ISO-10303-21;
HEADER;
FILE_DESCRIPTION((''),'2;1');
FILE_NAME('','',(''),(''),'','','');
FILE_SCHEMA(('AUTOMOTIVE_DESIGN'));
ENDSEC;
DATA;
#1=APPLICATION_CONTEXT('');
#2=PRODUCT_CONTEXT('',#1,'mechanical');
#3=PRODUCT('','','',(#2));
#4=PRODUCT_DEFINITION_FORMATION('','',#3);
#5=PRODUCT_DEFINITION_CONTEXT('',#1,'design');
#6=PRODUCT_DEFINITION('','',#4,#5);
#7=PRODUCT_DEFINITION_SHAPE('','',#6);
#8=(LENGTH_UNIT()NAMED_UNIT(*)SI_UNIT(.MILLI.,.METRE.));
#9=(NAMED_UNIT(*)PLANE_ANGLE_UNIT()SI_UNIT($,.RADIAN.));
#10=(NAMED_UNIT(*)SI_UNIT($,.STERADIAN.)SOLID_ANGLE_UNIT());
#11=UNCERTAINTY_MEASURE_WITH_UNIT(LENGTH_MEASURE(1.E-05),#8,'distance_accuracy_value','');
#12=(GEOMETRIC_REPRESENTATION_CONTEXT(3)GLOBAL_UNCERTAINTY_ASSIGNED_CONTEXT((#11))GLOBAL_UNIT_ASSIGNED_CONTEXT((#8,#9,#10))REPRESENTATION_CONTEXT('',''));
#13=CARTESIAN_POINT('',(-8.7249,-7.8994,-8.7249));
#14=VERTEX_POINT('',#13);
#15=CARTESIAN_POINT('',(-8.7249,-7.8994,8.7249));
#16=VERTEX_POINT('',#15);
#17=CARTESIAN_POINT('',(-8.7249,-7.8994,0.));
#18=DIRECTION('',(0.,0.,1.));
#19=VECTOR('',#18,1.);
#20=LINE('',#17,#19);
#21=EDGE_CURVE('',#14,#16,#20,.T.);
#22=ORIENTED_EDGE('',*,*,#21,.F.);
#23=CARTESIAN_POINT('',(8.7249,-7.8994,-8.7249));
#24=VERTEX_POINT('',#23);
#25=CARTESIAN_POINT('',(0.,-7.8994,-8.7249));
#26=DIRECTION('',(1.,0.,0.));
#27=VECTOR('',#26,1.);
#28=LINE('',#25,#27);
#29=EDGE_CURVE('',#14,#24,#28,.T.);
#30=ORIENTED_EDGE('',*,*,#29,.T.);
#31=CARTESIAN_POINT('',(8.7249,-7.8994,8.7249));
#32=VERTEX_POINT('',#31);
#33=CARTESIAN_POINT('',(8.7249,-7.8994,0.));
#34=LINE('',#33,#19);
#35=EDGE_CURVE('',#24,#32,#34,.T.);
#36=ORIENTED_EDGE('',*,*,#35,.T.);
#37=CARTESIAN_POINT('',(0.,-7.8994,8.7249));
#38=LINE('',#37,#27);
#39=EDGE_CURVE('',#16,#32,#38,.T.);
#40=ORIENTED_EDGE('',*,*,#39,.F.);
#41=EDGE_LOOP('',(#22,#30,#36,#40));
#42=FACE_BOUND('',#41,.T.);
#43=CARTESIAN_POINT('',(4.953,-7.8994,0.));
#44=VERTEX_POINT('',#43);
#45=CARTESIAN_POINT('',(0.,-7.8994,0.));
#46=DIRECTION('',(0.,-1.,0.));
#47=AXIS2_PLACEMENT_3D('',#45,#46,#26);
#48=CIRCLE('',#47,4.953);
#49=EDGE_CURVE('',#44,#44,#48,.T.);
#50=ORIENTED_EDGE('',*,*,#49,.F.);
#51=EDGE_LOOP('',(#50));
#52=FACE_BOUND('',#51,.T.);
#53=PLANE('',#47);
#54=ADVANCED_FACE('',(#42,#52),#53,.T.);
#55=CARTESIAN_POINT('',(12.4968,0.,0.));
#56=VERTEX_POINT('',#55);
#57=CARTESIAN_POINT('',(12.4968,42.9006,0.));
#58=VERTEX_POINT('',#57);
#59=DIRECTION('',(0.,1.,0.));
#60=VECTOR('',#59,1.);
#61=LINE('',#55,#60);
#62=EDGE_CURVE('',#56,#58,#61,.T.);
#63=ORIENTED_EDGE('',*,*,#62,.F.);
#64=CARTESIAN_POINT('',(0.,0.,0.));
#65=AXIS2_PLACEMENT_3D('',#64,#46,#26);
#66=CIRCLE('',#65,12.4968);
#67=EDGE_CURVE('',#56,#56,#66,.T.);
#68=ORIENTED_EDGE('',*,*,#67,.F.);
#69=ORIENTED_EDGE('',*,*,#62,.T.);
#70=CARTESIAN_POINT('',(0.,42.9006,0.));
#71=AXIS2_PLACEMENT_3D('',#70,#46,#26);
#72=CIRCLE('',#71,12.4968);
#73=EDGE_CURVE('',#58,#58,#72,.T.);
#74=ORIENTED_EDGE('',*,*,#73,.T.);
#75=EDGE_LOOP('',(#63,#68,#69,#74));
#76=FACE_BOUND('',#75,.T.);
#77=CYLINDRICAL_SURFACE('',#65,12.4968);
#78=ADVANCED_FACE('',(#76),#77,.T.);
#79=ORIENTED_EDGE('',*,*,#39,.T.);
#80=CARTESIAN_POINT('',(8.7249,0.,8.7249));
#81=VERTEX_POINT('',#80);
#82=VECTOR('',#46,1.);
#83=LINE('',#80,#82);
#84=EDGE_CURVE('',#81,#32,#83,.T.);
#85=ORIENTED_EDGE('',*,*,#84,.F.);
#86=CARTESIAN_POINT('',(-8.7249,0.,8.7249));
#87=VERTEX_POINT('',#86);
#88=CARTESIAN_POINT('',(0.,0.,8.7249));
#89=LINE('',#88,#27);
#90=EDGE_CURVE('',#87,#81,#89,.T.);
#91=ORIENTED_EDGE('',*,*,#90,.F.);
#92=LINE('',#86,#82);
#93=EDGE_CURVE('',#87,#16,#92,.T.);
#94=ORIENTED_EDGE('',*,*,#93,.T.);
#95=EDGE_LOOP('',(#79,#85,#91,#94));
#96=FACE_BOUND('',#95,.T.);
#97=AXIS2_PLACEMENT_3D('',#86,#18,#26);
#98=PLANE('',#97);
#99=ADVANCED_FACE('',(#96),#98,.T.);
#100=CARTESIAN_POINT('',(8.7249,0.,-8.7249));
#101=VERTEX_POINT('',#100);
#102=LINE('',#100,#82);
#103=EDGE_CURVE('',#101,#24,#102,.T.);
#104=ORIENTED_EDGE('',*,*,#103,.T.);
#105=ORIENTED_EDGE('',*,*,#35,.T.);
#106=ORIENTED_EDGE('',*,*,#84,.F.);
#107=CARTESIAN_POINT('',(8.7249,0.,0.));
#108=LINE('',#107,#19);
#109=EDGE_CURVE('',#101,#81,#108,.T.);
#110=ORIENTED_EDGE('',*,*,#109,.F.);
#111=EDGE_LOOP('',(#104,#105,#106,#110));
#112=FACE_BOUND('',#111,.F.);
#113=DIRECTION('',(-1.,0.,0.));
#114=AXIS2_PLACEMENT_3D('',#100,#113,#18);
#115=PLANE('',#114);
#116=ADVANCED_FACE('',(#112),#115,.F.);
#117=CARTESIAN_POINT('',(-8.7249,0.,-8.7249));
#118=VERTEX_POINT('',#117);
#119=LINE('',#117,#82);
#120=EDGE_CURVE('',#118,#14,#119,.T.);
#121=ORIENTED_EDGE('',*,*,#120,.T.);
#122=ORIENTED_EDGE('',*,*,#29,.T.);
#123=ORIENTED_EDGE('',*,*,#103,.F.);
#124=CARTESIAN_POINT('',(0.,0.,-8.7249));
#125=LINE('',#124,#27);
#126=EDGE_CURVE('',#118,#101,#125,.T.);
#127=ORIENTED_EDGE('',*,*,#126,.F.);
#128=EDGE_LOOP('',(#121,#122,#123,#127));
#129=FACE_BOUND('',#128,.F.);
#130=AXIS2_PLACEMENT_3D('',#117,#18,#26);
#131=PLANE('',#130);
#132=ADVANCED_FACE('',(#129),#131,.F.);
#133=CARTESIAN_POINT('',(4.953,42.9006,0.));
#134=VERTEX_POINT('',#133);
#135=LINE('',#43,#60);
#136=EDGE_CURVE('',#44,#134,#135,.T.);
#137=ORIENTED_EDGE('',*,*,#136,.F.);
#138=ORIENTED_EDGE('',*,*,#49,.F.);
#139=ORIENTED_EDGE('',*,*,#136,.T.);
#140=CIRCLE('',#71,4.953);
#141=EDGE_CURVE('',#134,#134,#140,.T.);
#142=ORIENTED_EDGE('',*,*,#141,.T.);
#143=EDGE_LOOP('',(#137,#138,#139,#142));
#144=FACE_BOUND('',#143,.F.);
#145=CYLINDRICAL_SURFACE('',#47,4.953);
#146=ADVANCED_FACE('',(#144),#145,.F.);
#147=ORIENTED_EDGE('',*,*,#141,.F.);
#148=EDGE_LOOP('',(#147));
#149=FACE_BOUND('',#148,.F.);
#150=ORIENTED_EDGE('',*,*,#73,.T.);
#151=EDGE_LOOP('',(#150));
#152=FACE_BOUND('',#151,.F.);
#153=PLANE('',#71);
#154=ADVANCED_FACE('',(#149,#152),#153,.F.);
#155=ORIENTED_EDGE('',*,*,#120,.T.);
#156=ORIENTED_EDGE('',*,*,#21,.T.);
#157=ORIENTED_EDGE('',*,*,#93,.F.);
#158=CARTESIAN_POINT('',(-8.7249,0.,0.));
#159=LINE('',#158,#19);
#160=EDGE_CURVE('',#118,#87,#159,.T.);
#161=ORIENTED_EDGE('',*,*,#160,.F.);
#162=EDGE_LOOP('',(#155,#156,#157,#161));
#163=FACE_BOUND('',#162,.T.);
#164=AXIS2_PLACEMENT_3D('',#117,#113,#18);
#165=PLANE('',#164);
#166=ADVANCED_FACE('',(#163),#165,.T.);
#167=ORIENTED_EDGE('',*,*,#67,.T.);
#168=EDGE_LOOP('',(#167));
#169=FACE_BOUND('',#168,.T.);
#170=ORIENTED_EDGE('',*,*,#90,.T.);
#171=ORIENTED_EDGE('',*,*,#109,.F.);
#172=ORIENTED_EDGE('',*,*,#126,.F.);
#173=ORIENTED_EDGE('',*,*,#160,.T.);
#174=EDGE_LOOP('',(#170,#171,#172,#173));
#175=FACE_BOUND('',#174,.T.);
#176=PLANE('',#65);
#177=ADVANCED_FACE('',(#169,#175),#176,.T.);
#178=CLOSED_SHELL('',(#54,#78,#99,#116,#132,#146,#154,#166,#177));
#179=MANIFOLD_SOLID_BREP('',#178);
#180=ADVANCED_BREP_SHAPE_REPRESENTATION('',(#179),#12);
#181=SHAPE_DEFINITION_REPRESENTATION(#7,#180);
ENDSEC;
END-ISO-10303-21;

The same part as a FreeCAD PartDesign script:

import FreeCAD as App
import Part
import Sketcher
Q = App.Units.Quantity

doc = App.newDocument("Part")
params = doc.addObject("Spreadsheet::Sheet", "Params")
for row, (alias, value) in enumerate([
    ("sketch1_diameter", "0.984 in"),
    ("pad1_length", "1.689 in"),
    ("sketch2_width", "0.687 in"),
    ("pad2_length", "0.311 in"),
    ("sketch3_diameter", "0.39 in"),
    ("pocket1_length", "2 in"),
], start=1):
    params.set(f"A{row}", alias)
    params.set(f"B{row}", "=" + value)
    params.setAlias(f"B{row}", alias)

body = doc.addObject("PartDesign::Body", "Body")

# Sketch on XZ plane
sketch1 = doc.addObject("Sketcher::SketchObject", "Sketch")
body.addObject(sketch1)
sketch1.AttachmentSupport = (doc.XZ_Plane, [""])
sketch1.MapMode = "FlatFace"
sketch1.addGeometry(Part.Circle(App.Vector(0, 0, 0), App.Vector(0, 0, 1), 12), False)
sketch1.addConstraint(Sketcher.Constraint("Coincident", 0, 3, -1, 1))
sketch1.addConstraint(Sketcher.Constraint("Diameter", 0, Q("0.984 in")))
sketch1.setExpression("Constraints[1]", "Params.sketch1_diameter")
pad1 = doc.addObject("PartDesign::Pad", "Pad")
body.addObject(pad1)
pad1.Profile = sketch1
pad1.setExpression("Length", "Params.pad1_length")
pad1.Reversed = True

# Sketch on XZ plane
sketch2 = doc.addObject("Sketcher::SketchObject", "Sketch001")
body.addObject(sketch2)
sketch2.AttachmentSupport = (doc.XZ_Plane, [""])
sketch2.MapMode = "FlatFace"
sketch2.addGeometry(Part.LineSegment(App.Vector(-9, 9, 0), App.Vector(-9, -9, 0)), False)
sketch2.addGeometry(Part.LineSegment(App.Vector(-9, -9, 0), App.Vector(9, -9, 0)), False)
sketch2.addGeometry(Part.LineSegment(App.Vector(9, -9, 0), App.Vector(9, 9, 0)), False)
sketch2.addGeometry(Part.LineSegment(App.Vector(9, 9, 0), App.Vector(-9, 9, 0)), False)
sketch2.addConstraint(Sketcher.Constraint("Coincident", 0, 2, 1, 1))
sketch2.addConstraint(Sketcher.Constraint("Coincident", 1, 2, 2, 1))
sketch2.addConstraint(Sketcher.Constraint("Coincident", 2, 2, 3, 1))
sketch2.addConstraint(Sketcher.Constraint("Coincident", 3, 2, 0, 1))
sketch2.addConstraint(Sketcher.Constraint("Vertical", 0))
sketch2.addConstraint(Sketcher.Constraint("Horizontal", 1))
sketch2.addConstraint(Sketcher.Constraint("Vertical", 2))
sketch2.addConstraint(Sketcher.Constraint("Horizontal", 3))
sketch2.addConstraint(Sketcher.Constraint("Symmetric", 0, 2, 2, 2, -1, 1))
sketch2.addConstraint(Sketcher.Constraint("Equal", 3, 0))
sketch2.addConstraint(Sketcher.Constraint("DistanceX", 1, 1, 1, 2, Q("0.687 in")))
sketch2.setExpression("Constraints[10]", "Params.sketch2_width")
pad2 = doc.addObject("PartDesign::Pad", "Pad001")
body.addObject(pad2)
pad2.Profile = sketch2
pad2.setExpression("Length", "Params.pad2_length")

# Sketch on XZ plane
sketch3 = doc.addObject("Sketcher::SketchObject", "Sketch002")
body.addObject(sketch3)
sketch3.AttachmentSupport = (doc.XZ_Plane, [""])
sketch3.MapMode = "FlatFace"
sketch3.AttachmentOffset = App.Placement(App.Vector(0, 0, 0.311 * 25.4), App.Rotation())
sketch3.addGeometry(Part.Circle(App.Vector(0, 0, 0), App.Vector(0, 0, 1), 5), False)
sketch3.addConstraint(Sketcher.Constraint("Coincident", 0, 3, -1, 1))
sketch3.addConstraint(Sketcher.Constraint("Diameter", 0, Q("0.39 in")))
sketch3.setExpression("Constraints[1]", "Params.sketch3_diameter")
pocket1 = doc.addObject("PartDesign::Pocket", "Pocket")
body.addObject(pocket1)
pocket1.Profile = sketch3
pocket1.setExpression("Length", "Params.pocket1_length")

doc.recompute()
